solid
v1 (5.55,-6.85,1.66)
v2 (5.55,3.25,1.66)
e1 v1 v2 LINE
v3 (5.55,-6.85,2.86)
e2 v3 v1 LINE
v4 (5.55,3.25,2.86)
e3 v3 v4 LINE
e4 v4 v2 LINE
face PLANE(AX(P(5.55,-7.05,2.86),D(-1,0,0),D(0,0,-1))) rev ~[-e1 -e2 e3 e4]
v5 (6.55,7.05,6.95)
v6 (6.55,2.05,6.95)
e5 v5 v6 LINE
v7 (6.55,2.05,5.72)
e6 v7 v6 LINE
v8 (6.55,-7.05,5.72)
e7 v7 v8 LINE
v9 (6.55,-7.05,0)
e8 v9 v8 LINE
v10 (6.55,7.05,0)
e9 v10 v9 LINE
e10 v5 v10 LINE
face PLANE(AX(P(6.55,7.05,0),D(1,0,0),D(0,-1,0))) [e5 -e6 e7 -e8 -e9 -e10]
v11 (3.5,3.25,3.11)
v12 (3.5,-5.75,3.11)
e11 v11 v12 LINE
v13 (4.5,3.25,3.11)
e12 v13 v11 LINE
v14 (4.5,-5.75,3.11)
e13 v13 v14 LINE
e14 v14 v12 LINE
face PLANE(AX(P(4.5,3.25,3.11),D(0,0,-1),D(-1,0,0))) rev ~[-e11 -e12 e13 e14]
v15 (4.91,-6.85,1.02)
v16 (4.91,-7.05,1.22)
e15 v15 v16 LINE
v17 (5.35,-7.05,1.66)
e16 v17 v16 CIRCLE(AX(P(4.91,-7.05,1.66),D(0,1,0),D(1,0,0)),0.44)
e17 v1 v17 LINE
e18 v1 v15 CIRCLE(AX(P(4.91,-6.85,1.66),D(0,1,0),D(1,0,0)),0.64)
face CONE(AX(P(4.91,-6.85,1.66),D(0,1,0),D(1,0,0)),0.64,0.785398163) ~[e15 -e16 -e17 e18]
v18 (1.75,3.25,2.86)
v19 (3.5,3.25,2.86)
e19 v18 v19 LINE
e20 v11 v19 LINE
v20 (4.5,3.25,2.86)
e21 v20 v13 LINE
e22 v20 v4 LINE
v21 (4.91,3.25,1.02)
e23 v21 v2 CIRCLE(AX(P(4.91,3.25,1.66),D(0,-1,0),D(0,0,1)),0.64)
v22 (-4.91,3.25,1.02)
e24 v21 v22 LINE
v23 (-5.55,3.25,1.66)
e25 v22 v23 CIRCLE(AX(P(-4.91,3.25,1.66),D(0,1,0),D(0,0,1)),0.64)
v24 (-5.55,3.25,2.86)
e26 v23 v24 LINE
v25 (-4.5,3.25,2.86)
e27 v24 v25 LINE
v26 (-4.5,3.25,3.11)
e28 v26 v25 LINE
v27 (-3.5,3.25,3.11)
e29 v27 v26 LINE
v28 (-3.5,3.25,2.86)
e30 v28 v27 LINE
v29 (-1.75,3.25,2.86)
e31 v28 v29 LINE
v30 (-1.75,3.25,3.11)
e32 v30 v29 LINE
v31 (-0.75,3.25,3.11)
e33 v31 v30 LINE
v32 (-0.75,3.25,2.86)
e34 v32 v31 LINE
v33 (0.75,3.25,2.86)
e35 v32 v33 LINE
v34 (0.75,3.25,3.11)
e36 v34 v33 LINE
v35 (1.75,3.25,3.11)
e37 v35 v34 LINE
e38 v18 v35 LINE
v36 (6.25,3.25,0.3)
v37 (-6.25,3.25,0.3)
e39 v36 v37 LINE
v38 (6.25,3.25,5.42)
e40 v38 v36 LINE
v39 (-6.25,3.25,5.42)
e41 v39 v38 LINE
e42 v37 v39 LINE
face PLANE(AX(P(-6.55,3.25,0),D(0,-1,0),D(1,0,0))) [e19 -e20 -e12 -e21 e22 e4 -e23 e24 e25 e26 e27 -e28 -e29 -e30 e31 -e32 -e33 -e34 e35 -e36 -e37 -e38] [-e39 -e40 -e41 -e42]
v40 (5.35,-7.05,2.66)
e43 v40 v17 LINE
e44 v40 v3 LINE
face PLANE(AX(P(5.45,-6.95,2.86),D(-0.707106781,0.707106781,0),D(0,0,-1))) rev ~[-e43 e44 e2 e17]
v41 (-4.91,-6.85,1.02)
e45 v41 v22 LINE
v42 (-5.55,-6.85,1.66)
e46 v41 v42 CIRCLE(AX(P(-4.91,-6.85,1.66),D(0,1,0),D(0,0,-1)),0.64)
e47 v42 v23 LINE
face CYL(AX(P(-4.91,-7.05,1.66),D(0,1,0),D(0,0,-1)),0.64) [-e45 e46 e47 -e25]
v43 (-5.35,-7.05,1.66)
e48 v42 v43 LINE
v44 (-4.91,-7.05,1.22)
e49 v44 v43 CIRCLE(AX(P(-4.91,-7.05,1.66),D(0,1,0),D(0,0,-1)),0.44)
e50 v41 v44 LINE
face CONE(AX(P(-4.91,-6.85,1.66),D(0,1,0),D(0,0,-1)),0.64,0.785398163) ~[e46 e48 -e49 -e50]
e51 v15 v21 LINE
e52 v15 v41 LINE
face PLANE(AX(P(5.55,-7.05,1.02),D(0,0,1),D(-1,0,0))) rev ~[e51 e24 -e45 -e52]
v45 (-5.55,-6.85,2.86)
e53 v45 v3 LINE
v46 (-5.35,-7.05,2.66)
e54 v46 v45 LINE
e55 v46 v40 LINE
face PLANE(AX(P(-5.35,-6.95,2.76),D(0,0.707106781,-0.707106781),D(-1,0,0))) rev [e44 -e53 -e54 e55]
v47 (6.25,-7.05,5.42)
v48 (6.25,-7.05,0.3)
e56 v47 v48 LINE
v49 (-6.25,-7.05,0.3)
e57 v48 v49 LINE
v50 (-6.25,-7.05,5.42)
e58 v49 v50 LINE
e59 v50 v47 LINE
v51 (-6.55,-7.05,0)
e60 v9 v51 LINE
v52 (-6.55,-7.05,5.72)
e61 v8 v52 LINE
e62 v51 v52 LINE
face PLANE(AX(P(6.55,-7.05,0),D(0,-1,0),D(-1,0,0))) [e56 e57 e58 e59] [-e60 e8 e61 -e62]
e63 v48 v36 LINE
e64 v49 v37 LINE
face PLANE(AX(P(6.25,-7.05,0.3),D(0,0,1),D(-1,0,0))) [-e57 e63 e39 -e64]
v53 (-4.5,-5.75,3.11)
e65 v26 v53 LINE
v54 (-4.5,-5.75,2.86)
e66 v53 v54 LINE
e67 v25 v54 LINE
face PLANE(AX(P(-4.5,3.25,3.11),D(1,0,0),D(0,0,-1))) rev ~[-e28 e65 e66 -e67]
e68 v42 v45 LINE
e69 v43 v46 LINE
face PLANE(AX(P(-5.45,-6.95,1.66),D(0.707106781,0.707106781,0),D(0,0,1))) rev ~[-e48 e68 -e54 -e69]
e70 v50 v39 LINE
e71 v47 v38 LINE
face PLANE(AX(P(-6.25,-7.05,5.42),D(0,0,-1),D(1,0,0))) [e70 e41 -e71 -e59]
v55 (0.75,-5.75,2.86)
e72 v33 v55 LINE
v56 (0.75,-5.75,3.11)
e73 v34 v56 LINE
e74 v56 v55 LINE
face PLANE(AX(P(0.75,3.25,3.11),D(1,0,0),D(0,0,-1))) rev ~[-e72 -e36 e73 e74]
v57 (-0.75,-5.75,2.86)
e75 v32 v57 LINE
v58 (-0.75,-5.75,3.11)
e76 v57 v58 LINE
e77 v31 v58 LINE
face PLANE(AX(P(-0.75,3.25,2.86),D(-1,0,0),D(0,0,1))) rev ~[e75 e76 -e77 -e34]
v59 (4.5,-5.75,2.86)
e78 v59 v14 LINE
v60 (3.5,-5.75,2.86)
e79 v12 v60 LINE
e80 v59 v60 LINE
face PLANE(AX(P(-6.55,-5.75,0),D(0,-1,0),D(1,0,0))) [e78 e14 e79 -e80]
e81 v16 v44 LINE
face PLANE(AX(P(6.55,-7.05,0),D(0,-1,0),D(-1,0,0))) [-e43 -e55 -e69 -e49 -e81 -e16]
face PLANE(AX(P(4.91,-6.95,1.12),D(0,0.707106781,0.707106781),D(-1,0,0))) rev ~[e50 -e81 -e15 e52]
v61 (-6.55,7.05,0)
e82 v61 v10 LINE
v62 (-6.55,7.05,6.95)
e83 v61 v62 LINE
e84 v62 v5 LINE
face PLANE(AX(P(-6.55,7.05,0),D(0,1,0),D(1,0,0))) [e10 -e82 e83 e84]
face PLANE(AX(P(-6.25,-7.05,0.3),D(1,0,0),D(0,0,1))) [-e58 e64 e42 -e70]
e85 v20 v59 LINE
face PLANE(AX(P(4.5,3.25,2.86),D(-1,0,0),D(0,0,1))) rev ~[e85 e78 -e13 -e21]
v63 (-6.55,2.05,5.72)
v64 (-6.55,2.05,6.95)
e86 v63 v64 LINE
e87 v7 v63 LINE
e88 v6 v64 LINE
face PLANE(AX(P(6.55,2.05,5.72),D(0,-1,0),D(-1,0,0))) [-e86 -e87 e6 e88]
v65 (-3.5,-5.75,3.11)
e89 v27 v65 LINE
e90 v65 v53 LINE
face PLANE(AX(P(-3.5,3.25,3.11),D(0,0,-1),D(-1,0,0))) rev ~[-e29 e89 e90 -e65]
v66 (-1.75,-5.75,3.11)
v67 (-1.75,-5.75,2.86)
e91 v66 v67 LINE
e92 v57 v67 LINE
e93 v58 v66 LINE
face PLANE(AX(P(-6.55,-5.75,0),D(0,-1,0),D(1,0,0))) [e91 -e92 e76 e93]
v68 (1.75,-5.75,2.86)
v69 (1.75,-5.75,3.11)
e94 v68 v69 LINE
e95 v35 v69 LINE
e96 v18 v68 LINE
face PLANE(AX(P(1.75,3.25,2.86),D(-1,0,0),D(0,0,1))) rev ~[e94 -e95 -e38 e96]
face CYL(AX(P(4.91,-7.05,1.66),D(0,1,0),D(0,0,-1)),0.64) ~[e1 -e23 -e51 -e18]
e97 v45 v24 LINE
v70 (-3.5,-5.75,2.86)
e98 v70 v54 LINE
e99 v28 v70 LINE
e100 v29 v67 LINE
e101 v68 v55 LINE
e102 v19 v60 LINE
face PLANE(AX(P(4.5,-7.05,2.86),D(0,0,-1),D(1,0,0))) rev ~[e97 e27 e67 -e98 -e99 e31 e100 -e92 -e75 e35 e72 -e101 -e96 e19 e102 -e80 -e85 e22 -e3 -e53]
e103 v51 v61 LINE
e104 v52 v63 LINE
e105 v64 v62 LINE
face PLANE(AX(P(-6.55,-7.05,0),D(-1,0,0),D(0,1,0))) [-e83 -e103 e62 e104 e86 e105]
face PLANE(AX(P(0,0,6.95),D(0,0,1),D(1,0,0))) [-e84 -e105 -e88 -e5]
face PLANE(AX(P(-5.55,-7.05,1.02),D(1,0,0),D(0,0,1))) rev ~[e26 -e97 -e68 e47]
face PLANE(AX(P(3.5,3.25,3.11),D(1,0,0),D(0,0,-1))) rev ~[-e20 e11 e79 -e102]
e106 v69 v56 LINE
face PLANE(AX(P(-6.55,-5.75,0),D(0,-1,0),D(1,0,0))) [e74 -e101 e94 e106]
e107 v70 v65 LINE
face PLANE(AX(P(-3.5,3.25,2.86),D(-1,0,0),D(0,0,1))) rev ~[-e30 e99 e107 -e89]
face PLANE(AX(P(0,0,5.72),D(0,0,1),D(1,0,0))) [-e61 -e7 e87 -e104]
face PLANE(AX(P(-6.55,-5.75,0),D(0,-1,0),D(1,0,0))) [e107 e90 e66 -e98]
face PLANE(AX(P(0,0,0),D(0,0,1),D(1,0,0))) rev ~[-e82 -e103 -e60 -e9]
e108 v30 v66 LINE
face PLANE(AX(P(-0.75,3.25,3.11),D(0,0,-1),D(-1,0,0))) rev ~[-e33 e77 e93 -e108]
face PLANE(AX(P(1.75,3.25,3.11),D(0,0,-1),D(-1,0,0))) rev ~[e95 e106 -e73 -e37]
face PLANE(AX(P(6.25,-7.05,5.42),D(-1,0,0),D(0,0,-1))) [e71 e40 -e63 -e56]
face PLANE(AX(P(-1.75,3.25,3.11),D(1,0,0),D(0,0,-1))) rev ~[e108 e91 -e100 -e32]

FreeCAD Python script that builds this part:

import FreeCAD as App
import Part
import Sketcher


def edges_at(feature, points):
    """Names of the edges that pass closest to the given points."""
    edges = feature.Shape.Edges
    near = lambda p: min(range(len(edges)), key=lambda i: edges[i].distToShape(Part.Vertex(*p))[0])
    return sorted({f"Edge{near(p) + 1}" for p in points})

doc = App.newDocument("Part")
body = doc.addObject("PartDesign::Body", "Body")

sketch1 = doc.addObject("Sketcher::SketchObject", "Sketch")
body.addObject(sketch1)
sketch1.AttachmentSupport = (doc.XY_Plane, [""])
sketch1.MapMode = "FlatFace"
sketch1.addGeometry([
    Part.LineSegment(App.Vector(7, 7, 0), App.Vector(-7, 7, 0)),
    Part.LineSegment(App.Vector(-7, 7, 0), App.Vector(-7, -7, 0)),
    Part.LineSegment(App.Vector(-7, -7, 0), App.Vector(7, -7, 0)),
    Part.LineSegment(App.Vector(7, -7, 0), App.Vector(7, 7, 0)),
], False)
sketch1.addConstraint([
    Sketcher.Constraint("Coincident", 0, 2, 1, 1),
    Sketcher.Constraint("Coincident", 1, 2, 2, 1),
    Sketcher.Constraint("Coincident", 2, 2, 3, 1),
    Sketcher.Constraint("Coincident", 3, 2, 0, 1),
    Sketcher.Constraint("Horizontal", 0),
    Sketcher.Constraint("Vertical", 1),
    Sketcher.Constraint("Horizontal", 2),
    Sketcher.Constraint("Vertical", 3),
    Sketcher.Constraint("Symmetric", 0, 2, 2, 2, -1, 1),
    Sketcher.Constraint("DistanceX", 0, 2, 0, 1, 13.1),
    Sketcher.Constraint("DistanceY", 1, 2, 1, 1, 14.1),
])
pad1 = doc.addObject("PartDesign::Pad", "Pad")
body.addObject(pad1)
pad1.Profile = sketch1
pad1.Length = 5.72

sketch2 = doc.addObject("Sketcher::SketchObject", "Sketch001")
body.addObject(sketch2)
sketch2.AttachmentSupport = (doc.XY_Plane, [""])
sketch2.MapMode = "FlatFace"
sketch2.AttachmentOffset = App.Placement(App.Vector(0, 0, 5.72), App.Rotation())
sketch2.addGeometry([
    Part.LineSegment(App.Vector(7, 2, 0), App.Vector(7, 7, 0)),
    Part.LineSegment(App.Vector(7, 7, 0), App.Vector(-7, 7, 0)),
    Part.LineSegment(App.Vector(-7, 7, 0), App.Vector(-7, 2, 0)),
    Part.LineSegment(App.Vector(-7, 2, 0), App.Vector(7, 2, 0)),
], False)
sketch2.addConstraint([
    Sketcher.Constraint("Coincident", 0, 2, 1, 1),
    Sketcher.Constraint("Coincident", 1, 2, 2, 1),
    Sketcher.Constraint("Coincident", 2, 2, 3, 1),
    Sketcher.Constraint("Coincident", 3, 2, 0, 1),
    Sketcher.Constraint("Vertical", 0),
    Sketcher.Constraint("Horizontal", 1),
    Sketcher.Constraint("Vertical", 2),
    Sketcher.Constraint("Horizontal", 3),
    Sketcher.Constraint("DistanceY", 0, 1, 0, 2, 5.0),
    Sketcher.Constraint("DistanceX", 1, 2, 1, 1, 13.1),
    Sketcher.Constraint("DistanceX", -1, 1, 0, 2, 6.55),
    Sketcher.Constraint("DistanceY", -1, 1, 0, 2, 7.05),
])
pad2 = doc.addObject("PartDesign::Pad", "Pad001")
body.addObject(pad2)
pad2.Profile = sketch2
pad2.Length = 1.23

sketch3 = doc.addObject("Sketcher::SketchObject", "Sketch002")
body.addObject(sketch3)
sketch3.AttachmentSupport = (doc.XZ_Plane, [""])
sketch3.MapMode = "FlatFace"
sketch3.AttachmentOffset = App.Placement(App.Vector(0, 0, 7.05), App.Rotation())
sketch3.addGeometry([
    Part.LineSegment(App.Vector(6.2, 5.4, 0), App.Vector(-6.2, 5.4, 0)),
    Part.LineSegment(App.Vector(-6.2, 5.4, 0), App.Vector(-6.2, 0.3, 0)),
    Part.LineSegment(App.Vector(-6.2, 0.3, 0), App.Vector(6.2, 0.3, 0)),
    Part.LineSegment(App.Vector(6.2, 0.3, 0), App.Vector(6.2, 5.4, 0)),
    Part.LineSegment(App.Vector(-5.5, 1, 0), App.Vector(-5.5, 2.9, 0)),
    Part.LineSegment(App.Vector(-5.5, 2.9, 0), App.Vector(5.5, 2.9, 0)),
    Part.LineSegment(App.Vector(5.5, 2.9, 0), App.Vector(5.5, 1, 0)),
    Part.LineSegment(App.Vector(5.5, 1, 0), App.Vector(-5.5, 1, 0)),
], False)
sketch3.addConstraint([
    Sketcher.Constraint("Coincident", 0, 2, 1, 1),
    Sketcher.Constraint("Coincident", 1, 2, 2, 1),
    Sketcher.Constraint("Coincident", 2, 2, 3, 1),
    Sketcher.Constraint("Coincident", 3, 2, 0, 1),
    Sketcher.Constraint("Coincident", 4, 2, 5, 1),
    Sketcher.Constraint("Coincident", 5, 2, 6, 1),
    Sketcher.Constraint("Coincident", 6, 2, 7, 1),
    Sketcher.Constraint("Coincident", 7, 2, 4, 1),
    Sketcher.Constraint("Horizontal", 0),
    Sketcher.Constraint("Vertical", 1),
    Sketcher.Constraint("Horizontal", 2),
    Sketcher.Constraint("Vertical", 3),
    Sketcher.Constraint("Vertical", 4),
    Sketcher.Constraint("Horizontal", 5),
    Sketcher.Constraint("Vertical", 6),
    Sketcher.Constraint("Horizontal", 7),
    Sketcher.Constraint("DistanceY", 1, 2, 1, 1, 5.12),
    Sketcher.Constraint("DistanceY", 4, 1, 4, 2, 1.84),
    Sketcher.Constraint("DistanceY", -1, 1, 1, 2, 0.3),
    Sketcher.Constraint("DistanceX", 0, 2, 4, 2, 0.7),
    Sketcher.Constraint("DistanceX", 5, 2, 2, 2, 0.7),
    Sketcher.Constraint("DistanceY", 4, 2, 0, 2, 2.56),
    Sketcher.Constraint("DistanceX", 0, 2, 0, 1, 12.5),
    Sketcher.Constraint("DistanceX", 0, 2, -1, 1, 6.25),
])
pocket1 = doc.addObject("PartDesign::Pocket", "Pocket")
body.addObject(pocket1)
pocket1.Profile = sketch3
pocket1.Length = 10.3
doc.recompute()

fillet = doc.addObject("PartDesign::Fillet", "Fillet")
body.addObject(fillet)
fillet.Base = (pocket1, edges_at(pocket1, [(5.55, -1.9, 1.02)]))
fillet.Radius = 0.64
doc.recompute()

fillet2 = doc.addObject("PartDesign::Fillet", "Fillet001")
body.addObject(fillet2)
fillet2.Base = (fillet, edges_at(fillet, [(-5.55, -1.9, 1.02)]))
fillet2.Radius = 0.64
doc.recompute()

chamfer = doc.addObject("PartDesign::Chamfer", "Chamfer")
body.addObject(chamfer)
chamfer.Base = (fillet2, edges_at(fillet2, [
    (5.55, -7.05, 2.26),
    (5.362, -7.05, 1.208),
    (0, -7.05, 1.02),
    (-5.362, -7.05, 1.208),
    (-5.55, -7.05, 2.26),
]))
chamfer.Size = 0.2
doc.recompute()

chamfer2 = doc.addObject("PartDesign::Chamfer", "Chamfer001")
body.addObject(chamfer2)
chamfer2.Base = (chamfer, edges_at(chamfer, [(0, -7.05, 2.86)]))
chamfer2.Size = 0.2

sketch4 = doc.addObject("Sketcher::SketchObject", "Sketch003")
body.addObject(sketch4)
sketch4.AttachmentSupport = (doc.XZ_Plane, [""])
sketch4.MapMode = "FlatFace"
sketch4.AttachmentOffset = App.Placement(App.Vector(0, 0, -3.25), App.Rotation())
sketch4.addGeometry([
    Part.LineSegment(App.Vector(-4.5, 2.86, 0), App.Vector(-3.5, 2.86, 0)),
    Part.LineSegment(App.Vector(-3.5, 2.86, 0), App.Vector(-3.5, 3.11, 0)),
    Part.LineSegment(App.Vector(-3.5, 3.11, 0), App.Vector(-4.5, 3.11, 0)),
    Part.LineSegment(App.Vector(-4.5, 3.11, 0), App.Vector(-4.5, 2.86, 0)),
    Part.LineSegment(App.Vector(-1.75, 2.86, 0), App.Vector(-0.75, 2.86, 0)),
    Part.LineSegment(App.Vector(-0.75, 2.86, 0), App.Vector(-0.75, 3.11, 0)),
    Part.LineSegment(App.Vector(-0.75, 3.11, 0), App.Vector(-1.75, 3.11, 0)),
    Part.LineSegment(App.Vector(-1.75, 3.11, 0), App.Vector(-1.75, 2.86, 0)),
    Part.LineSegment(App.Vector(0.75, 2.86, 0), App.Vector(1.75, 2.86, 0)),
    Part.LineSegment(App.Vector(1.75, 2.86, 0), App.Vector(1.75, 3.11, 0)),
    Part.LineSegment(App.Vector(1.75, 3.11, 0), App.Vector(0.75, 3.11, 0)),
    Part.LineSegment(App.Vector(0.75, 3.11, 0), App.Vector(0.75, 2.86, 0)),
    Part.LineSegment(App.Vector(3.5, 2.86, 0), App.Vector(4.5, 2.86, 0)),
    Part.LineSegment(App.Vector(4.5, 2.86, 0), App.Vector(4.5, 3.11, 0)),
    Part.LineSegment(App.Vector(4.5, 3.11, 0), App.Vector(3.5, 3.11, 0)),
    Part.LineSegment(App.Vector(3.5, 3.11, 0), App.Vector(3.5, 2.86, 0)),
], False)
sketch4.addConstraint([
    Sketcher.Constraint("Coincident", 0, 2, 1, 1),
    Sketcher.Constraint("Coincident", 1, 2, 2, 1),
    Sketcher.Constraint("Coincident", 2, 2, 3, 1),
    Sketcher.Constraint("Coincident", 3, 2, 0, 1),
    Sketcher.Constraint("Coincident", 4, 2, 5, 1),
    Sketcher.Constraint("Coincident", 5, 2, 6, 1),
    Sketcher.Constraint("Coincident", 6, 2, 7, 1),
    Sketcher.Constraint("Coincident", 7, 2, 4, 1),
    Sketcher.Constraint("Coincident", 8, 2, 9, 1),
    Sketcher.Constraint("Coincident", 9, 2, 10, 1),
    Sketcher.Constraint("Coincident", 10, 2, 11, 1),
    Sketcher.Constraint("Coincident", 11, 2, 8, 1),
    Sketcher.Constraint("Coincident", 12, 2, 13, 1),
    Sketcher.Constraint("Coincident", 13, 2, 14, 1),
    Sketcher.Constraint("Coincident", 14, 2, 15, 1),
    Sketcher.Constraint("Coincident", 15, 2, 12, 1),
    Sketcher.Constraint("Horizontal", 0),
    Sketcher.Constraint("Vertical", 1),
    Sketcher.Constraint("Horizontal", 2),
    Sketcher.Constraint("Vertical", 3),
    Sketcher.Constraint("Horizontal", 4),
    Sketcher.Constraint("Vertical", 5),
    Sketcher.Constraint("Horizontal", 6),
    Sketcher.Constraint("Vertical", 7),
    Sketcher.Constraint("Horizontal", 8),
    Sketcher.Constraint("Vertical", 9),
    Sketcher.Constraint("Horizontal", 10),
    Sketcher.Constraint("Vertical", 11),
    Sketcher.Constraint("Horizontal", 12),
    Sketcher.Constraint("Vertical", 13),
    Sketcher.Constraint("Horizontal", 14),
    Sketcher.Constraint("Vertical", 15),
    Sketcher.Constraint("Symmetric", 7, 2, 8, 2, -2),
    Sketcher.Constraint("Symmetric", 5, 2, 10, 2, -2),
    Sketcher.Constraint("Symmetric", 3, 2, 12, 2, -2),
    Sketcher.Constraint("Symmetric", 1, 2, 14, 2, -2),
    Sketcher.Constraint("Horizontal", 3, 2, 4, 2),
    Sketcher.Constraint("Horizontal", 2, 2, 5, 2),
    Sketcher.Constraint("Equal", 2, 4),
    Sketcher.Constraint("DistanceX", 0, 1, 0, 2, 1.0),
    Sketcher.Constraint("DistanceY", 1, 1, 1, 2, 0.25),
    Sketcher.Constraint("DistanceX", 5, 2, 10, 2, 1.5),
    Sketcher.Constraint("DistanceX", 1, 2, 6, 2, 1.75),
    Sketcher.Constraint("DistanceY", -1, 1, 0, 2, 2.86),
])
pad3 = doc.addObject("PartDesign::Pad", "Pad002")
body.addObject(pad3)
pad3.Profile = sketch4
pad3.Length = 9

doc.recompute()
